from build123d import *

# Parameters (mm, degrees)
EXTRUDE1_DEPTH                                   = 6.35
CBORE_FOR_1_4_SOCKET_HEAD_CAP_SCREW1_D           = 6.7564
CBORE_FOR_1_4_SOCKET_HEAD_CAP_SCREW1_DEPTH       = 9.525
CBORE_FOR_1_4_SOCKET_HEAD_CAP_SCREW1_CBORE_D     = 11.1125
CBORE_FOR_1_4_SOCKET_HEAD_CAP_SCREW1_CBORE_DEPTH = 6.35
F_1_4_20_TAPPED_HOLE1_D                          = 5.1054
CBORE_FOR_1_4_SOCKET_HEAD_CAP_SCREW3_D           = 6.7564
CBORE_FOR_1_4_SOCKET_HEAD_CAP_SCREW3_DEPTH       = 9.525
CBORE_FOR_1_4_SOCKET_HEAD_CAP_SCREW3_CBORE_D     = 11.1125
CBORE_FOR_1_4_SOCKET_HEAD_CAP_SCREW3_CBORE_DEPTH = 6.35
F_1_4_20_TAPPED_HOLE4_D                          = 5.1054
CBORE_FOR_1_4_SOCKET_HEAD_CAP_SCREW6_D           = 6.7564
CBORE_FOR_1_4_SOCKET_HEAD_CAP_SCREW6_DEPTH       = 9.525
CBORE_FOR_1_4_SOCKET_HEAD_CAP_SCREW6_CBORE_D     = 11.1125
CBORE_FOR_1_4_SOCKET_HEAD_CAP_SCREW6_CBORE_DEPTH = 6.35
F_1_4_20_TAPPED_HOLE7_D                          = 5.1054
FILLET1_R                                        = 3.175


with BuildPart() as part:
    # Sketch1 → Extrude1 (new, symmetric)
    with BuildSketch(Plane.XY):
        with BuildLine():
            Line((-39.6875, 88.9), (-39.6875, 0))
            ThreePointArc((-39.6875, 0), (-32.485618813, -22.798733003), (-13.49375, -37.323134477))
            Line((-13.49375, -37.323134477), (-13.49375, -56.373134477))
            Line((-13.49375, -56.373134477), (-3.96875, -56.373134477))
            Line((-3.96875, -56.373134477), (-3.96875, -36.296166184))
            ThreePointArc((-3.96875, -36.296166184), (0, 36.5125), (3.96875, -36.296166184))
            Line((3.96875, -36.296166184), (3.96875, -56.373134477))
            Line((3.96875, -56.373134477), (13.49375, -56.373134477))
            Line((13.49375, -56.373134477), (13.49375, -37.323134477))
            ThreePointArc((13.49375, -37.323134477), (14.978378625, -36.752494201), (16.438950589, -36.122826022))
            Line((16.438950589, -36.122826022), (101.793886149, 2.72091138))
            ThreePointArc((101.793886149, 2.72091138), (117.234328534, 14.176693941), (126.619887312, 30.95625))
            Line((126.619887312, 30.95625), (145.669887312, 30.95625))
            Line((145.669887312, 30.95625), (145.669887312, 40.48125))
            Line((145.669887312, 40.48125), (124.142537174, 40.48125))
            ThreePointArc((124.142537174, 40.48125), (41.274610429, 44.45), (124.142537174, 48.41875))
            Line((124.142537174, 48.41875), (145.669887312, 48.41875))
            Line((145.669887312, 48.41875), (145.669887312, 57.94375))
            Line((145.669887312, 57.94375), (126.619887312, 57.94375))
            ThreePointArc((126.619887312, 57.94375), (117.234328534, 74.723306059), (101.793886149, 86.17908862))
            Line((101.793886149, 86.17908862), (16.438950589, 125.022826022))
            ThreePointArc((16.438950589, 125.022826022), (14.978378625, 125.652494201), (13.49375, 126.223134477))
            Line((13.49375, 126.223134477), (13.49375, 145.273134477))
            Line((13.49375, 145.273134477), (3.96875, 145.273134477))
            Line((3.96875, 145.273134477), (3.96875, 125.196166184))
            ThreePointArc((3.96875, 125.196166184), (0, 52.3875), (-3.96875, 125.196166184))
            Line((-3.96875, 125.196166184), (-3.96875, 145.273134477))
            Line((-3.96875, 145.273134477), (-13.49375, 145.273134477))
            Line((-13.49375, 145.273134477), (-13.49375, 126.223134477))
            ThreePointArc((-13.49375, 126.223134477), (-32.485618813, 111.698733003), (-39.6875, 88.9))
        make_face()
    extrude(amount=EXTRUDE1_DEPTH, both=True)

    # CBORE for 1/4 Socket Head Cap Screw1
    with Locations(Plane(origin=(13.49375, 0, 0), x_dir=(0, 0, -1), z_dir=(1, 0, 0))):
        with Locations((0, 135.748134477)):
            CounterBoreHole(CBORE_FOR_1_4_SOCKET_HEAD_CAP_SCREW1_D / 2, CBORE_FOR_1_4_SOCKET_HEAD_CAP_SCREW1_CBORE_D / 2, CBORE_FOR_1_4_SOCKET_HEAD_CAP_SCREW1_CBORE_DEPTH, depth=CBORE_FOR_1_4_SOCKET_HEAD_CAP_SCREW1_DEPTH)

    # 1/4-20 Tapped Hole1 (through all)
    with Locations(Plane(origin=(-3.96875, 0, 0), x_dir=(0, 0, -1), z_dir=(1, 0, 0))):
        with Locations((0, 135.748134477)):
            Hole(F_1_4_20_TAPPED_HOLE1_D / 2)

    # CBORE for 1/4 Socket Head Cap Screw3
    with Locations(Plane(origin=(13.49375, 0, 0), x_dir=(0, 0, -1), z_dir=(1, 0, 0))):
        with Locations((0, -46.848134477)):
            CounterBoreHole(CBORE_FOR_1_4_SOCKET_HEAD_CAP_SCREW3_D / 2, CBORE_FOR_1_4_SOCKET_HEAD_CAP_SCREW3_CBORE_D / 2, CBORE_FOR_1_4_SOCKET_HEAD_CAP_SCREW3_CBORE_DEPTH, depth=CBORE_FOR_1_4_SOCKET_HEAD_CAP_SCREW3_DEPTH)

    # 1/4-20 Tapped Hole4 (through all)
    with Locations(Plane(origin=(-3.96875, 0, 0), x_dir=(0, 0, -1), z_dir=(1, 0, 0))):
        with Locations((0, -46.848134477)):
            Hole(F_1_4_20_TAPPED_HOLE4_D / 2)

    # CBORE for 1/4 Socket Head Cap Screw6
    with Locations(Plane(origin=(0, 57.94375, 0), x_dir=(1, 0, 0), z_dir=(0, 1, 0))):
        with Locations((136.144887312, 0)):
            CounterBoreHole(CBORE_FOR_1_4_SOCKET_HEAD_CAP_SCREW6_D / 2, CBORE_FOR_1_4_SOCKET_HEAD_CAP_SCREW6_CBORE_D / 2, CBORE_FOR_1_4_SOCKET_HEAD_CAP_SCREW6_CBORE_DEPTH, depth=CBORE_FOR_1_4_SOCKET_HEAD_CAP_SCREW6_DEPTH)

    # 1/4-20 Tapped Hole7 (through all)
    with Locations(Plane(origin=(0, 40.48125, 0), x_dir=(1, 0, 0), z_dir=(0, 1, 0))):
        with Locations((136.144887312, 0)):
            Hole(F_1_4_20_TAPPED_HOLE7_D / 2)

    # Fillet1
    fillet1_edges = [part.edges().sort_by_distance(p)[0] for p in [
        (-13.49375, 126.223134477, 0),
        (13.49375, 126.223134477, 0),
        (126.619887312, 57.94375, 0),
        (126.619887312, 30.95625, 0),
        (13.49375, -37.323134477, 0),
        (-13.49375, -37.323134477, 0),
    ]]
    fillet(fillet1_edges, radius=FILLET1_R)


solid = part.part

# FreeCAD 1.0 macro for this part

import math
import FreeCAD as App
import Part
import Sketcher

V = App.Vector
Q = App.Units.Quantity


def edges_at(feature, points):
    """Names of the edges that pass closest to the given points."""
    edges = feature.Shape.Edges
    near = lambda p: min(range(len(edges)), key=lambda i: edges[i].distToShape(Part.Vertex(*p))[0])
    return sorted({f"Edge{near(p) + 1}" for p in points})

doc = App.newDocument("Part")
body = doc.addObject("PartDesign::Body", "Body")

# Sketch on XY plane
sketch1 = body.newObject("Sketcher::SketchObject", "Sketch")
sketch1.AttachmentSupport = (doc.getObject("XY_Plane"), [""])
sketch1.MapMode = "FlatFace"
sketch1.addGeometry([
    Part.LineSegment(V(-39.6875, 88.9, 0), V(-39.6875, 0, 0)),  # 0
    Part.ArcOfCircle(Part.Circle(V(0, 0, 0), V(0, 0, 1), 39.6875), math.radians(-180), math.radians(-109.876874)),  # 1
    Part.LineSegment(V(-13.49375, -37.323134, 0), V(-13.49375, -56.373134, 0)),  # 2
    Part.LineSegment(V(-13.49375, -56.373134, 0), V(-3.96875, -56.373134, 0)),  # 3
    Part.LineSegment(V(-3.96875, -56.373134, 0), V(-3.96875, -36.296166, 0)),  # 4
    Part.ArcOfCircle(Part.Circle(V(0, 0, 0), V(0, 0, 1), 36.5125), math.radians(-83.759869), math.radians(263.759869)),  # 5
    Part.LineSegment(V(3.96875, -36.296166, 0), V(3.96875, -56.373134, 0)),  # 6
    Part.LineSegment(V(3.96875, -56.373134, 0), V(13.49375, -56.373134, 0)),  # 7
    Part.LineSegment(V(13.49375, -56.373134, 0), V(13.49375, -37.323134, 0)),  # 8
    Part.ArcOfCircle(Part.Circle(V(0, 0.000001, 0), V(0, 0, 1), 39.687501), math.radians(-70.123126), math.radians(-65.530438)),  # 9
    Part.LineSegment(V(16.438951, -36.122826, 0), V(101.793886, 2.720911, 0)),  # 10
    Part.ArcOfCircle(Part.Circle(V(82.80361, 44.45, 0), V(0, 0, 1), 45.847), math.radians(-65.530438), math.radians(-17.116846)),  # 11
    Part.LineSegment(V(126.619887, 30.95625, 0), V(145.669887, 30.95625, 0)),  # 12
    Part.LineSegment(V(145.669887, 30.95625, 0), V(145.669887, 40.48125, 0)),  # 13
    Part.LineSegment(V(145.669887, 40.48125, 0), V(124.142537, 40.48125, 0)),  # 14
    Part.ArcOfCircle(Part.Circle(V(82.80361, 44.45, 0), V(0, 0, 1), 41.529), math.radians(5.483883), math.radians(354.516117)),  # 15
    Part.LineSegment(V(124.142537, 48.41875, 0), V(145.669887, 48.41875, 0)),  # 16
    Part.LineSegment(V(145.669887, 48.41875, 0), V(145.669887, 57.94375, 0)),  # 17
    Part.LineSegment(V(145.669887, 57.94375, 0), V(126.619887, 57.94375, 0)),  # 18
    Part.ArcOfCircle(Part.Circle(V(82.80361, 44.45, 0), V(0, 0, 1), 45.847), math.radians(17.116846), math.radians(65.530438)),  # 19
    Part.LineSegment(V(101.793886, 86.179089, 0), V(16.438951, 125.022826, 0)),  # 20
    Part.ArcOfCircle(Part.Circle(V(0, 88.899999, 0), V(0, 0, 1), 39.687501), math.radians(65.530438), math.radians(70.123126)),  # 21
    Part.LineSegment(V(13.49375, 126.223134, 0), V(13.49375, 145.273134, 0)),  # 22
    Part.LineSegment(V(13.49375, 145.273134, 0), V(3.96875, 145.273134, 0)),  # 23
    Part.LineSegment(V(3.96875, 145.273134, 0), V(3.96875, 125.196166, 0)),  # 24
    Part.ArcOfCircle(Part.Circle(V(0, 88.9, 0), V(0, 0, 1), 36.5125), math.radians(96.240131), math.radians(443.759869)),  # 25
    Part.LineSegment(V(-3.96875, 125.196166, 0), V(-3.96875, 145.273134, 0)),  # 26
    Part.LineSegment(V(-3.96875, 145.273134, 0), V(-13.49375, 145.273134, 0)),  # 27
    Part.LineSegment(V(-13.49375, 145.273134, 0), V(-13.49375, 126.223134, 0)),  # 28
    Part.ArcOfCircle(Part.Circle(V(0, 88.9, 0), V(0, 0, 1), 39.6875), math.radians(109.876874), math.radians(180)),  # 29
], False)
sketch1.addConstraint([
    Sketcher.Constraint("Tangent", 0, 2, 1, 1),
    Sketcher.Constraint("Coincident", 1, 2, 2, 1),
    Sketcher.Constraint("Coincident", 2, 2, 3, 1),
    Sketcher.Constraint("Coincident", 3, 2, 4, 1),
    Sketcher.Constraint("Coincident", 4, 2, 5, 2),
    Sketcher.Constraint("Coincident", 5, 1, 6, 1),
    Sketcher.Constraint("Coincident", 6, 2, 7, 1),
    Sketcher.Constraint("Coincident", 7, 2, 8, 1),
    Sketcher.Constraint("Coincident", 8, 2, 9, 1),
    Sketcher.Constraint("Tangent", 9, 2, 10, 1),
    Sketcher.Constraint("Tangent", 10, 2, 11, 1),
    Sketcher.Constraint("Coincident", 11, 2, 12, 1),
    Sketcher.Constraint("Coincident", 12, 2, 13, 1),
    Sketcher.Constraint("Coincident", 13, 2, 14, 1),
    Sketcher.Constraint("Coincident", 14, 2, 15, 2),
    Sketcher.Constraint("Coincident", 15, 1, 16, 1),
    Sketcher.Constraint("Coincident", 16, 2, 17, 1),
    Sketcher.Constraint("Coincident", 17, 2, 18, 1),
    Sketcher.Constraint("Coincident", 18, 2, 19, 1),
    Sketcher.Constraint("Tangent", 19, 2, 20, 1),
    Sketcher.Constraint("Tangent", 20, 2, 21, 1),
    Sketcher.Constraint("Coincident", 21, 2, 22, 1),
    Sketcher.Constraint("Coincident", 22, 2, 23, 1),
    Sketcher.Constraint("Coincident", 23, 2, 24, 1),
    Sketcher.Constraint("Coincident", 24, 2, 25, 2),
    Sketcher.Constraint("Coincident", 25, 1, 26, 1),
    Sketcher.Constraint("Coincident", 26, 2, 27, 1),
    Sketcher.Constraint("Coincident", 27, 2, 28, 1),
    Sketcher.Constraint("Coincident", 28, 2, 29, 1),
    Sketcher.Constraint("Tangent", 29, 2, 0, 1),
    Sketcher.Constraint("Vertical", 0),
    Sketcher.Constraint("Vertical", 2),
    Sketcher.Constraint("Horizontal", 3),
    Sketcher.Constraint("Vertical", 4),
    Sketcher.Constraint("Vertical", 6),
    Sketcher.Constraint("Horizontal", 7),
    Sketcher.Constraint("Vertical", 8),
    Sketcher.Constraint("Horizontal", 12),
    Sketcher.Constraint("Vertical", 13),
    Sketcher.Constraint("Horizontal", 14),
    Sketcher.Constraint("Horizontal", 16),
    Sketcher.Constraint("Vertical", 17),
    Sketcher.Constraint("Horizontal", 18),
    Sketcher.Constraint("Vertical", 22),
    Sketcher.Constraint("Horizontal", 23),
    Sketcher.Constraint("Vertical", 24),
    Sketcher.Constraint("Vertical", 26),
    Sketcher.Constraint("Horizontal", 27),
    Sketcher.Constraint("Vertical", 28),
    Sketcher.Constraint("Coincident", 1, 3, -1, 1),
    Sketcher.Constraint("Coincident", 5, 3, -1, 1),
    Sketcher.Constraint("Coincident", 9, 3, -1, 1),
    Sketcher.Constraint("Coincident", 15, 3, 11, 3),
    Sketcher.Constraint("Coincident", 19, 3, 11, 3),
    Sketcher.Constraint("Coincident", 25, 3, 21, 3),
    Sketcher.Constraint("Coincident", 29, 3, 21, 3),
    Sketcher.Constraint("Equal", 1, 9),
    Sketcher.Constraint("Equal", 11, 19),
    Sketcher.Constraint("Equal", 9, 21),
    Sketcher.Constraint("Equal", 5, 25),
    Sketcher.Constraint("Equal", 21, 29),
    Sketcher.Constraint("Symmetric", 3, 2, 6, 2, -2),
    Sketcher.Constraint("Symmetric", 23, 2, 26, 2, -2),
    Sketcher.Constraint("Horizontal", 1, 2, 8, 2),
    Sketcher.Constraint("Horizontal", 21, 2, 28, 2),
    Sketcher.Constraint("Vertical", 14, 2, 15, 1),
    Sketcher.Constraint("Vertical", 13, 2, 16, 2),
    Sketcher.Constraint("Vertical", 11, 2, 18, 2),
    Sketcher.Constraint("Vertical", 10, 2, 19, 2),
    Sketcher.Constraint("Vertical", 8, 2, 21, 2),
    Sketcher.Constraint("Vertical", 6, 2, 23, 2),
    Sketcher.Constraint("Equal", 18, 2),
    Sketcher.Constraint("Equal", 27, 13),
    Sketcher.Constraint("Equal", 8, 22),
    Sketcher.Constraint("DistanceY", 0, 2, 0, 1, Q("3.5 in")),
    Sketcher.Constraint("Radius", 1, Q("1.5625 in")),
    Sketcher.Constraint("Radius", 5, Q("1.4375 in")),
    Sketcher.Constraint("Radius", 11, Q("1.805 in")),
    Sketcher.Constraint("Radius", 15, Q("1.635 in")),
    Sketcher.Constraint("DistanceX", 12, 1, 12, 2, Q("0.75 in")),
    Sketcher.Constraint("DistanceX", 3, 1, 3, 2, Q("0.375 in")),
    Sketcher.Constraint("DistanceX", 1, 2, -1, 1, Q("0.53125 in")),
    Sketcher.Constraint("DistanceY", -1, 1, 11, 2, Q("1.21875 in")),
    Sketcher.Constraint("DistanceX", 10, 2, 11, 2, 24.826001),
])
pad1 = body.newObject("PartDesign::Pad", "Pad")
pad1.Profile = sketch1
pad1.Length = Q("0.5 in")
pad1.Midplane = True

# Sketch on YZ plane
sketch2 = body.newObject("Sketcher::SketchObject", "Sketch001")
sketch2.AttachmentSupport = (doc.getObject("YZ_Plane"), [""])
sketch2.MapMode = "FlatFace"
sketch2.AttachmentOffset = App.Placement(V(0, 0, 0.53125 * 25.4), App.Rotation())
sketch2.addGeometry(Part.Circle(V(135.748134, 0, 0), V(0, 0, 1), 3.3782), False)
sketch2.addConstraint([
    Sketcher.Constraint("PointOnObject", 0, 3, -1),
    Sketcher.Constraint("Diameter", 0, Q("0.266 in")),
    Sketcher.Constraint("DistanceX", -1, 1, 0, 3, 135.748134),
])
doc.recompute()
hole = body.newObject("PartDesign::Hole", "Hole")
hole.Profile = sketch2
hole.ThreadType = "None"
hole.Diameter = Q("0.266 in")
hole.DepthType = "Dimension"
hole.Depth = Q("0.375 in")
hole.DrillPoint = "Flat"
hole.HoleCutType = "Counterbore"
hole.HoleCutDiameter = Q("0.4375 in")
hole.HoleCutDepth = Q("0.25 in")

# Sketch on YZ plane
sketch3 = body.newObject("Sketcher::SketchObject", "Sketch002")
sketch3.AttachmentSupport = (doc.getObject("YZ_Plane"), [""])
sketch3.MapMode = "FlatFace"
sketch3.AttachmentOffset = App.Placement(V(0, 0, -0.15625 * 25.4), App.Rotation())
sketch3.addGeometry(Part.Circle(V(135.748134, 0, 0), V(0, 0, 1), 2.5527), False)
sketch3.addConstraint([
    Sketcher.Constraint("PointOnObject", 0, 3, -1),
    Sketcher.Constraint("Diameter", 0, Q("0.201 in")),
    Sketcher.Constraint("DistanceX", -1, 1, 0, 3, 135.748134),
])
doc.recompute()
hole2 = body.newObject("PartDesign::Hole", "Hole001")
hole2.Profile = sketch3
hole2.ThreadType = "None"
hole2.Diameter = Q("0.201 in")
hole2.DepthType = "ThroughAll"

# Sketch on YZ plane
sketch4 = body.newObject("Sketcher::SketchObject", "Sketch003")
sketch4.AttachmentSupport = (doc.getObject("YZ_Plane"), [""])
sketch4.MapMode = "FlatFace"
sketch4.AttachmentOffset = App.Placement(V(0, 0, 0.53125 * 25.4), App.Rotation())
sketch4.addGeometry(Part.Circle(V(-46.848134, 0, 0), V(0, 0, 1), 3.3782), False)
sketch4.addConstraint([
    Sketcher.Constraint("PointOnObject", 0, 3, -1),
    Sketcher.Constraint("Diameter", 0, Q("0.266 in")),
    Sketcher.Constraint("DistanceX", 0, 3, -1, 1, 46.848134),
])
doc.recompute()
hole3 = body.newObject("PartDesign::Hole", "Hole002")
hole3.Profile = sketch4
hole3.ThreadType = "None"
hole3.Diameter = Q("0.266 in")
hole3.DepthType = "Dimension"
hole3.Depth = Q("0.375 in")
hole3.DrillPoint = "Flat"
hole3.HoleCutType = "Counterbore"
hole3.HoleCutDiameter = Q("0.4375 in")
hole3.HoleCutDepth = Q("0.25 in")

# Sketch on YZ plane
sketch5 = body.newObject("Sketcher::SketchObject", "Sketch004")
sketch5.AttachmentSupport = (doc.getObject("YZ_Plane"), [""])
sketch5.MapMode = "FlatFace"
sketch5.AttachmentOffset = App.Placement(V(0, 0, -0.15625 * 25.4), App.Rotation())
sketch5.addGeometry(Part.Circle(V(-46.848134, 0, 0), V(0, 0, 1), 2.5527), False)
sketch5.addConstraint([
    Sketcher.Constraint("PointOnObject", 0, 3, -1),
    Sketcher.Constraint("Diameter", 0, Q("0.201 in")),
    Sketcher.Constraint("DistanceX", 0, 3, -1, 1, 46.848134),
])
doc.recompute()
hole4 = body.newObject("PartDesign::Hole", "Hole003")
hole4.Profile = sketch5
hole4.ThreadType = "None"
hole4.Diameter = Q("0.201 in")
hole4.DepthType = "ThroughAll"

# Sketch on XZ plane
sketch6 = body.newObject("Sketcher::SketchObject", "Sketch005")
sketch6.AttachmentSupport = (doc.getObject("XZ_Plane"), [""])
sketch6.MapMode = "FlatFace"
sketch6.AttachmentOffset = App.Placement(V(0, 0, -2.28125 * 25.4), App.Rotation())
sketch6.addGeometry(Part.Circle(V(136.144887, 0, 0), V(0, 0, 1), 3.3782), False)
sketch6.addConstraint([
    Sketcher.Constraint("PointOnObject", 0, 3, -1),
    Sketcher.Constraint("Diameter", 0, Q("0.266 in")),
    Sketcher.Constraint("DistanceX", -1, 1, 0, 3, 136.144887),
])
doc.recompute()
hole5 = body.newObject("PartDesign::Hole", "Hole004")
hole5.Profile = sketch6
hole5.ThreadType = "None"
hole5.Diameter = Q("0.266 in")
hole5.DepthType = "Dimension"
hole5.Depth = Q("0.375 in")
hole5.DrillPoint = "Flat"
hole5.HoleCutType = "Counterbore"
hole5.HoleCutDiameter = Q("0.4375 in")
hole5.HoleCutDepth = Q("0.25 in")
hole5.Reversed = True

# Sketch on XZ plane
sketch7 = body.newObject("Sketcher::SketchObject", "Sketch006")
sketch7.AttachmentSupport = (doc.getObject("XZ_Plane"), [""])
sketch7.MapMode = "FlatFace"
sketch7.AttachmentOffset = App.Placement(V(0, 0, -1.59375 * 25.4), App.Rotation())
sketch7.addGeometry(Part.Circle(V(136.144887, 0, 0), V(0, 0, 1), 2.5527), False)
sketch7.addConstraint([
    Sketcher.Constraint("PointOnObject", 0, 3, -1),
    Sketcher.Constraint("Diameter", 0, Q("0.201 in")),
    Sketcher.Constraint("DistanceX", -1, 1, 0, 3, 136.144887),
])
doc.recompute()
hole6 = body.newObject("PartDesign::Hole", "Hole005")
hole6.Profile = sketch7
hole6.ThreadType = "None"
hole6.Diameter = Q("0.201 in")
hole6.DepthType = "ThroughAll"
hole6.Reversed = True
doc.recompute()

fillet = body.newObject("PartDesign::Fillet", "Fillet")
fillet.Base = (hole6, edges_at(hole6, [
    (-13.494, 126.223, 0),
    (13.494, 126.223, 0),
    (126.62, 57.944, 0),
    (126.62, 30.956, 0),
    (13.494, -37.323, 0),
    (-13.494, -37.323, 0),
]))
fillet.Radius = Q("0.125 in")

doc.recompute()
